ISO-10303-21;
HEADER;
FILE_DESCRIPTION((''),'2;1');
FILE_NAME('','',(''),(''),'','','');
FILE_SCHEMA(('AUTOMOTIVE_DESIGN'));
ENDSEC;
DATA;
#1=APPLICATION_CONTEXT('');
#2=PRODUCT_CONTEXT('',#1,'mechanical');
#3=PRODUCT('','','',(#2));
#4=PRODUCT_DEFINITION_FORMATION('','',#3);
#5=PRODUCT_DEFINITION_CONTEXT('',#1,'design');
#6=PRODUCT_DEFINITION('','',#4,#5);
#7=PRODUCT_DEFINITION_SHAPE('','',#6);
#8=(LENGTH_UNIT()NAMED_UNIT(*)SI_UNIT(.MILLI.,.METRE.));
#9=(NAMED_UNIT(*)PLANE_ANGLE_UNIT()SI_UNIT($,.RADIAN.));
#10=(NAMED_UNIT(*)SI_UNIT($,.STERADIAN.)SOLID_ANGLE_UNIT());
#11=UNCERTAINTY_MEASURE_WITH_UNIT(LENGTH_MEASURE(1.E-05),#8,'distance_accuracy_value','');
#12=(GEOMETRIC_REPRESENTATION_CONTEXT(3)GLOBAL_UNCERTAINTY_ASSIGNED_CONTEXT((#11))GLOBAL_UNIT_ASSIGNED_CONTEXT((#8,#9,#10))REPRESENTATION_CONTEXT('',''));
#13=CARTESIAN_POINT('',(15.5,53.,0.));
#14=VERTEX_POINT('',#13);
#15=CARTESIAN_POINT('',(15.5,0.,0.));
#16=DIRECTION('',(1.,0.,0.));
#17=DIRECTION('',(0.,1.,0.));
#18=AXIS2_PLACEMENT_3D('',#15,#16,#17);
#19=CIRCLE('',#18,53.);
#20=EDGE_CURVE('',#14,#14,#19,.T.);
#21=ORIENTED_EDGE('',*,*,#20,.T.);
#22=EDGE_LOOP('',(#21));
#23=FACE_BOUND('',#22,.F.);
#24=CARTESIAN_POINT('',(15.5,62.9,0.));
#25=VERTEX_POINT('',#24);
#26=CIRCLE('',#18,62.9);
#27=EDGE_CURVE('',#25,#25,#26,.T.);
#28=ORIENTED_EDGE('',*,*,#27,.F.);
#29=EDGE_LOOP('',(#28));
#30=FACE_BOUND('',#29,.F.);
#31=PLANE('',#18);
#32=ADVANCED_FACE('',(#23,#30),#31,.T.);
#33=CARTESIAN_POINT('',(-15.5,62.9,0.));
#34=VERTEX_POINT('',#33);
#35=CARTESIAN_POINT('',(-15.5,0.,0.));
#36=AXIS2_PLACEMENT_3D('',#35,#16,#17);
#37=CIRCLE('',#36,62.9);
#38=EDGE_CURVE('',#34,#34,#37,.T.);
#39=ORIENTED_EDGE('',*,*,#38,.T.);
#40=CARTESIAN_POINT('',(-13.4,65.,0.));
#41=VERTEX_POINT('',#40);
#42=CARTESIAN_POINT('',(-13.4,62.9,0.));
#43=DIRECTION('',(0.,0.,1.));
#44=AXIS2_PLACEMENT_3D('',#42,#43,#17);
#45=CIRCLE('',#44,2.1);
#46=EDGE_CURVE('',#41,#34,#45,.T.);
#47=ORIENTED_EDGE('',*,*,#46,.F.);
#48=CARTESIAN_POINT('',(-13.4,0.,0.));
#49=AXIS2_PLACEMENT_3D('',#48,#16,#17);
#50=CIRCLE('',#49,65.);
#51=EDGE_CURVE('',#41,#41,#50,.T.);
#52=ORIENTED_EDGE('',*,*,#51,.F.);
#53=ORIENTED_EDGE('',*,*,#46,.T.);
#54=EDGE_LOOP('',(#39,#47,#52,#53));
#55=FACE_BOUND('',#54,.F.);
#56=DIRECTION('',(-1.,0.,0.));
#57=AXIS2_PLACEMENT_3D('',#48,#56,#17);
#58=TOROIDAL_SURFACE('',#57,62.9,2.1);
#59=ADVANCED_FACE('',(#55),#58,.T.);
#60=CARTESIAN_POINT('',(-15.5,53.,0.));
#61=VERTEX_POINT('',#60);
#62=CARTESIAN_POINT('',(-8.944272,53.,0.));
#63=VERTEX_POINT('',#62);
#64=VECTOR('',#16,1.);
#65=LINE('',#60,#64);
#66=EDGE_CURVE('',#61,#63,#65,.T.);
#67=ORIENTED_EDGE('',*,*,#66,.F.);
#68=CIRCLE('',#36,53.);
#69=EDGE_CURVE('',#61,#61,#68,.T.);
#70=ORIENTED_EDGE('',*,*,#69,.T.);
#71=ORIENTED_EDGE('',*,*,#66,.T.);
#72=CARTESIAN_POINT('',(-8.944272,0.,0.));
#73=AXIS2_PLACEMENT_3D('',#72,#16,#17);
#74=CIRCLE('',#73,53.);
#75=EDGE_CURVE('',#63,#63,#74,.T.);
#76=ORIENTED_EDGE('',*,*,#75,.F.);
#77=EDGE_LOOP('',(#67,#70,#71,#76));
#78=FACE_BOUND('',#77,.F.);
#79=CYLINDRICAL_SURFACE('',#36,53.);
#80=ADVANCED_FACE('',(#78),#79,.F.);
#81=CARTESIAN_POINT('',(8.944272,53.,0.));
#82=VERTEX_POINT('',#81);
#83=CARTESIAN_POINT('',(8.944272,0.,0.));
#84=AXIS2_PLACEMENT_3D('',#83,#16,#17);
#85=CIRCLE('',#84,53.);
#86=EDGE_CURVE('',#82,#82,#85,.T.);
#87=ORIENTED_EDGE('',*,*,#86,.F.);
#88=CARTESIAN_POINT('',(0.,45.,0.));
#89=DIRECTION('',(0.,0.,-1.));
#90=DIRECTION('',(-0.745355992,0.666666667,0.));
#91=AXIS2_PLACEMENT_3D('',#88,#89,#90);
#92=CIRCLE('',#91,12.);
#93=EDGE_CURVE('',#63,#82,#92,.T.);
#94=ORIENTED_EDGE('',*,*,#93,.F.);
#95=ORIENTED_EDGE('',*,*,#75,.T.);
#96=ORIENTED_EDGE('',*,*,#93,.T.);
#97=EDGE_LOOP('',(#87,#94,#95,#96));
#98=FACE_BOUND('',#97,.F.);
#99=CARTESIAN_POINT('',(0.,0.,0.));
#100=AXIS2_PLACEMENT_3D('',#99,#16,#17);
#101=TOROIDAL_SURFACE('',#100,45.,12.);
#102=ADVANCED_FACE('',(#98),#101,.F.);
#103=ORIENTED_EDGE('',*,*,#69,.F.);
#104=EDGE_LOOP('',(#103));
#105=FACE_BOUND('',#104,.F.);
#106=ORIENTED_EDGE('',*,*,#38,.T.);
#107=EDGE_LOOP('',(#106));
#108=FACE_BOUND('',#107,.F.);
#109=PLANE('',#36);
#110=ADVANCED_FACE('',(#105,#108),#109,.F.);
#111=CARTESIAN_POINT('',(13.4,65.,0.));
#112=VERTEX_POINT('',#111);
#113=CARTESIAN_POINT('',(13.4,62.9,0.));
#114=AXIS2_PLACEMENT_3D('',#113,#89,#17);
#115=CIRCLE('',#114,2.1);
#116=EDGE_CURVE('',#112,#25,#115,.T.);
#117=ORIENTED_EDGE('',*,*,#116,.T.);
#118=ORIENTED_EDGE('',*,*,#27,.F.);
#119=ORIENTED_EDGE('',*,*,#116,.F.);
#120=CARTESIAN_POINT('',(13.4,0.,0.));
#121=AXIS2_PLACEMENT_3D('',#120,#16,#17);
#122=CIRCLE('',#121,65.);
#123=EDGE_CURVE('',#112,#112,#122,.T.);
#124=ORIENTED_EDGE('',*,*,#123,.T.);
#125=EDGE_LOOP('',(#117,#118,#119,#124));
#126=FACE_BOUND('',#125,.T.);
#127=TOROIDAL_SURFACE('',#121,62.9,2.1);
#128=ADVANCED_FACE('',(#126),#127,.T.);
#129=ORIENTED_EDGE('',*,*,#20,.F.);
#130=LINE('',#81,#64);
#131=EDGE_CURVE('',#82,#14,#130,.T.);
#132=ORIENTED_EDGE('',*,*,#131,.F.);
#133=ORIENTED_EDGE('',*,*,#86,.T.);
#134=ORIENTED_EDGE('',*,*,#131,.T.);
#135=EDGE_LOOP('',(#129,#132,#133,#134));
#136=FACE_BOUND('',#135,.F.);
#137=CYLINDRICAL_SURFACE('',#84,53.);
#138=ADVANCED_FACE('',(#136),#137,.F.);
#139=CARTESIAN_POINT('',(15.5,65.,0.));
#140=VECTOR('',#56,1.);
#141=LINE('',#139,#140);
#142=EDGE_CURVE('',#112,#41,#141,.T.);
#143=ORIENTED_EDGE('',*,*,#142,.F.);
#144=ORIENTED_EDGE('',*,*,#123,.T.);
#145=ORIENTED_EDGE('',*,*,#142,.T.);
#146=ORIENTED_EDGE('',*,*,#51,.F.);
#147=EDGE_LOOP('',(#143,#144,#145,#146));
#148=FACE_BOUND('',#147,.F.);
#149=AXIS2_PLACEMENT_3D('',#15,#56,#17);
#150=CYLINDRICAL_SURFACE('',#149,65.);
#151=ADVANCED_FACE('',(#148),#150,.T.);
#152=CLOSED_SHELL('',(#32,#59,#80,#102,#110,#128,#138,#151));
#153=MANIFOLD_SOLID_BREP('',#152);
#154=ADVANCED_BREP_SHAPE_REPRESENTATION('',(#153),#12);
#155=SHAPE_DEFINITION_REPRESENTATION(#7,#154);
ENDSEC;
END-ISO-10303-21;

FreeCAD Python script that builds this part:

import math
import FreeCAD as App
import Part
import Sketcher
Q = App.Units.Quantity


def edges_at(feature, points):
    """Names of the edges that pass closest to the given points."""
    edges = feature.Shape.Edges
    near = lambda p: min(range(len(edges)), key=lambda i: edges[i].distToShape(Part.Vertex(*p))[0])
    return sorted({f"Edge{near(p) + 1}" for p in points})

doc = App.newDocument("Part")
body = doc.addObject("PartDesign::Body", "Body")

# Sketch on XY plane
sketch1 = body.newObject("Sketcher::SketchObject", "Sketch")
sketch1.AttachmentSupport = (doc.getObject("XY_Plane"), [""])
sketch1.MapMode = "FlatFace"
sketch1.addGeometry([
    Part.LineSegment(App.Vector(15.5, 65, 0), App.Vector(-15.5, 65, 0)),  # 0
    Part.LineSegment(App.Vector(-15.5, 65, 0), App.Vector(-15.5, 53, 0)),  # 1
    Part.LineSegment(App.Vector(-15.5, 53, 0), App.Vector(-8.944272, 53, 0)),  # 2
    Part.ArcOfCircle(Part.Circle(App.Vector(0, 45, 0), App.Vector(0, 0, 1), 12), math.radians(41.810315), math.radians(138.189685)),  # 3
    Part.LineSegment(App.Vector(8.944272, 53, 0), App.Vector(15.5, 53, 0)),  # 4
    Part.LineSegment(App.Vector(15.5, 53, 0), App.Vector(15.5, 65, 0)),  # 5
], False)
sketch1.addConstraint([
    Sketcher.Constraint("Coincident", 0, 2, 1, 1),
    Sketcher.Constraint("Coincident", 1, 2, 2, 1),
    Sketcher.Constraint("Coincident", 2, 2, 3, 2),
    Sketcher.Constraint("Coincident", 3, 1, 4, 1),
    Sketcher.Constraint("Coincident", 4, 2, 5, 1),
    Sketcher.Constraint("Coincident", 5, 2, 0, 1),
    Sketcher.Constraint("Horizontal", 0),
    Sketcher.Constraint("Vertical", 1),
    Sketcher.Constraint("Horizontal", 2),
    Sketcher.Constraint("Horizontal", 4),
    Sketcher.Constraint("Vertical", 5),
    Sketcher.Constraint("Symmetric", 2, 2, 3, 1, -2),
    Sketcher.Constraint("Equal", 2, 4),
    Sketcher.Constraint("Radius", 3, Q("12 mm")),
    Sketcher.Constraint("DistanceX", 0, 2, 0, 1, Q("31 mm")),
    Sketcher.Constraint("DistanceY", 1, 2, 1, 1, Q("12 mm")),
    Sketcher.Constraint("DistanceY", -1, 1, 3, 3, Q("45 mm")),
    Sketcher.Constraint("DistanceY", -1, 1, 0, 2, Q("65 mm")),
])
revolution = body.newObject("PartDesign::Revolution", "Revolution")
revolution.Profile = sketch1
revolution.ReferenceAxis = (sketch1, ["H_Axis"])
revolution.Angle = 360
doc.recompute()

fillet = body.newObject("PartDesign::Fillet", "Fillet")
fillet.Base = (revolution, edges_at(revolution, [(-15.5, -65, 0), (15.5, -65, 0)]))
fillet.Radius = 2.1

doc.recompute()
